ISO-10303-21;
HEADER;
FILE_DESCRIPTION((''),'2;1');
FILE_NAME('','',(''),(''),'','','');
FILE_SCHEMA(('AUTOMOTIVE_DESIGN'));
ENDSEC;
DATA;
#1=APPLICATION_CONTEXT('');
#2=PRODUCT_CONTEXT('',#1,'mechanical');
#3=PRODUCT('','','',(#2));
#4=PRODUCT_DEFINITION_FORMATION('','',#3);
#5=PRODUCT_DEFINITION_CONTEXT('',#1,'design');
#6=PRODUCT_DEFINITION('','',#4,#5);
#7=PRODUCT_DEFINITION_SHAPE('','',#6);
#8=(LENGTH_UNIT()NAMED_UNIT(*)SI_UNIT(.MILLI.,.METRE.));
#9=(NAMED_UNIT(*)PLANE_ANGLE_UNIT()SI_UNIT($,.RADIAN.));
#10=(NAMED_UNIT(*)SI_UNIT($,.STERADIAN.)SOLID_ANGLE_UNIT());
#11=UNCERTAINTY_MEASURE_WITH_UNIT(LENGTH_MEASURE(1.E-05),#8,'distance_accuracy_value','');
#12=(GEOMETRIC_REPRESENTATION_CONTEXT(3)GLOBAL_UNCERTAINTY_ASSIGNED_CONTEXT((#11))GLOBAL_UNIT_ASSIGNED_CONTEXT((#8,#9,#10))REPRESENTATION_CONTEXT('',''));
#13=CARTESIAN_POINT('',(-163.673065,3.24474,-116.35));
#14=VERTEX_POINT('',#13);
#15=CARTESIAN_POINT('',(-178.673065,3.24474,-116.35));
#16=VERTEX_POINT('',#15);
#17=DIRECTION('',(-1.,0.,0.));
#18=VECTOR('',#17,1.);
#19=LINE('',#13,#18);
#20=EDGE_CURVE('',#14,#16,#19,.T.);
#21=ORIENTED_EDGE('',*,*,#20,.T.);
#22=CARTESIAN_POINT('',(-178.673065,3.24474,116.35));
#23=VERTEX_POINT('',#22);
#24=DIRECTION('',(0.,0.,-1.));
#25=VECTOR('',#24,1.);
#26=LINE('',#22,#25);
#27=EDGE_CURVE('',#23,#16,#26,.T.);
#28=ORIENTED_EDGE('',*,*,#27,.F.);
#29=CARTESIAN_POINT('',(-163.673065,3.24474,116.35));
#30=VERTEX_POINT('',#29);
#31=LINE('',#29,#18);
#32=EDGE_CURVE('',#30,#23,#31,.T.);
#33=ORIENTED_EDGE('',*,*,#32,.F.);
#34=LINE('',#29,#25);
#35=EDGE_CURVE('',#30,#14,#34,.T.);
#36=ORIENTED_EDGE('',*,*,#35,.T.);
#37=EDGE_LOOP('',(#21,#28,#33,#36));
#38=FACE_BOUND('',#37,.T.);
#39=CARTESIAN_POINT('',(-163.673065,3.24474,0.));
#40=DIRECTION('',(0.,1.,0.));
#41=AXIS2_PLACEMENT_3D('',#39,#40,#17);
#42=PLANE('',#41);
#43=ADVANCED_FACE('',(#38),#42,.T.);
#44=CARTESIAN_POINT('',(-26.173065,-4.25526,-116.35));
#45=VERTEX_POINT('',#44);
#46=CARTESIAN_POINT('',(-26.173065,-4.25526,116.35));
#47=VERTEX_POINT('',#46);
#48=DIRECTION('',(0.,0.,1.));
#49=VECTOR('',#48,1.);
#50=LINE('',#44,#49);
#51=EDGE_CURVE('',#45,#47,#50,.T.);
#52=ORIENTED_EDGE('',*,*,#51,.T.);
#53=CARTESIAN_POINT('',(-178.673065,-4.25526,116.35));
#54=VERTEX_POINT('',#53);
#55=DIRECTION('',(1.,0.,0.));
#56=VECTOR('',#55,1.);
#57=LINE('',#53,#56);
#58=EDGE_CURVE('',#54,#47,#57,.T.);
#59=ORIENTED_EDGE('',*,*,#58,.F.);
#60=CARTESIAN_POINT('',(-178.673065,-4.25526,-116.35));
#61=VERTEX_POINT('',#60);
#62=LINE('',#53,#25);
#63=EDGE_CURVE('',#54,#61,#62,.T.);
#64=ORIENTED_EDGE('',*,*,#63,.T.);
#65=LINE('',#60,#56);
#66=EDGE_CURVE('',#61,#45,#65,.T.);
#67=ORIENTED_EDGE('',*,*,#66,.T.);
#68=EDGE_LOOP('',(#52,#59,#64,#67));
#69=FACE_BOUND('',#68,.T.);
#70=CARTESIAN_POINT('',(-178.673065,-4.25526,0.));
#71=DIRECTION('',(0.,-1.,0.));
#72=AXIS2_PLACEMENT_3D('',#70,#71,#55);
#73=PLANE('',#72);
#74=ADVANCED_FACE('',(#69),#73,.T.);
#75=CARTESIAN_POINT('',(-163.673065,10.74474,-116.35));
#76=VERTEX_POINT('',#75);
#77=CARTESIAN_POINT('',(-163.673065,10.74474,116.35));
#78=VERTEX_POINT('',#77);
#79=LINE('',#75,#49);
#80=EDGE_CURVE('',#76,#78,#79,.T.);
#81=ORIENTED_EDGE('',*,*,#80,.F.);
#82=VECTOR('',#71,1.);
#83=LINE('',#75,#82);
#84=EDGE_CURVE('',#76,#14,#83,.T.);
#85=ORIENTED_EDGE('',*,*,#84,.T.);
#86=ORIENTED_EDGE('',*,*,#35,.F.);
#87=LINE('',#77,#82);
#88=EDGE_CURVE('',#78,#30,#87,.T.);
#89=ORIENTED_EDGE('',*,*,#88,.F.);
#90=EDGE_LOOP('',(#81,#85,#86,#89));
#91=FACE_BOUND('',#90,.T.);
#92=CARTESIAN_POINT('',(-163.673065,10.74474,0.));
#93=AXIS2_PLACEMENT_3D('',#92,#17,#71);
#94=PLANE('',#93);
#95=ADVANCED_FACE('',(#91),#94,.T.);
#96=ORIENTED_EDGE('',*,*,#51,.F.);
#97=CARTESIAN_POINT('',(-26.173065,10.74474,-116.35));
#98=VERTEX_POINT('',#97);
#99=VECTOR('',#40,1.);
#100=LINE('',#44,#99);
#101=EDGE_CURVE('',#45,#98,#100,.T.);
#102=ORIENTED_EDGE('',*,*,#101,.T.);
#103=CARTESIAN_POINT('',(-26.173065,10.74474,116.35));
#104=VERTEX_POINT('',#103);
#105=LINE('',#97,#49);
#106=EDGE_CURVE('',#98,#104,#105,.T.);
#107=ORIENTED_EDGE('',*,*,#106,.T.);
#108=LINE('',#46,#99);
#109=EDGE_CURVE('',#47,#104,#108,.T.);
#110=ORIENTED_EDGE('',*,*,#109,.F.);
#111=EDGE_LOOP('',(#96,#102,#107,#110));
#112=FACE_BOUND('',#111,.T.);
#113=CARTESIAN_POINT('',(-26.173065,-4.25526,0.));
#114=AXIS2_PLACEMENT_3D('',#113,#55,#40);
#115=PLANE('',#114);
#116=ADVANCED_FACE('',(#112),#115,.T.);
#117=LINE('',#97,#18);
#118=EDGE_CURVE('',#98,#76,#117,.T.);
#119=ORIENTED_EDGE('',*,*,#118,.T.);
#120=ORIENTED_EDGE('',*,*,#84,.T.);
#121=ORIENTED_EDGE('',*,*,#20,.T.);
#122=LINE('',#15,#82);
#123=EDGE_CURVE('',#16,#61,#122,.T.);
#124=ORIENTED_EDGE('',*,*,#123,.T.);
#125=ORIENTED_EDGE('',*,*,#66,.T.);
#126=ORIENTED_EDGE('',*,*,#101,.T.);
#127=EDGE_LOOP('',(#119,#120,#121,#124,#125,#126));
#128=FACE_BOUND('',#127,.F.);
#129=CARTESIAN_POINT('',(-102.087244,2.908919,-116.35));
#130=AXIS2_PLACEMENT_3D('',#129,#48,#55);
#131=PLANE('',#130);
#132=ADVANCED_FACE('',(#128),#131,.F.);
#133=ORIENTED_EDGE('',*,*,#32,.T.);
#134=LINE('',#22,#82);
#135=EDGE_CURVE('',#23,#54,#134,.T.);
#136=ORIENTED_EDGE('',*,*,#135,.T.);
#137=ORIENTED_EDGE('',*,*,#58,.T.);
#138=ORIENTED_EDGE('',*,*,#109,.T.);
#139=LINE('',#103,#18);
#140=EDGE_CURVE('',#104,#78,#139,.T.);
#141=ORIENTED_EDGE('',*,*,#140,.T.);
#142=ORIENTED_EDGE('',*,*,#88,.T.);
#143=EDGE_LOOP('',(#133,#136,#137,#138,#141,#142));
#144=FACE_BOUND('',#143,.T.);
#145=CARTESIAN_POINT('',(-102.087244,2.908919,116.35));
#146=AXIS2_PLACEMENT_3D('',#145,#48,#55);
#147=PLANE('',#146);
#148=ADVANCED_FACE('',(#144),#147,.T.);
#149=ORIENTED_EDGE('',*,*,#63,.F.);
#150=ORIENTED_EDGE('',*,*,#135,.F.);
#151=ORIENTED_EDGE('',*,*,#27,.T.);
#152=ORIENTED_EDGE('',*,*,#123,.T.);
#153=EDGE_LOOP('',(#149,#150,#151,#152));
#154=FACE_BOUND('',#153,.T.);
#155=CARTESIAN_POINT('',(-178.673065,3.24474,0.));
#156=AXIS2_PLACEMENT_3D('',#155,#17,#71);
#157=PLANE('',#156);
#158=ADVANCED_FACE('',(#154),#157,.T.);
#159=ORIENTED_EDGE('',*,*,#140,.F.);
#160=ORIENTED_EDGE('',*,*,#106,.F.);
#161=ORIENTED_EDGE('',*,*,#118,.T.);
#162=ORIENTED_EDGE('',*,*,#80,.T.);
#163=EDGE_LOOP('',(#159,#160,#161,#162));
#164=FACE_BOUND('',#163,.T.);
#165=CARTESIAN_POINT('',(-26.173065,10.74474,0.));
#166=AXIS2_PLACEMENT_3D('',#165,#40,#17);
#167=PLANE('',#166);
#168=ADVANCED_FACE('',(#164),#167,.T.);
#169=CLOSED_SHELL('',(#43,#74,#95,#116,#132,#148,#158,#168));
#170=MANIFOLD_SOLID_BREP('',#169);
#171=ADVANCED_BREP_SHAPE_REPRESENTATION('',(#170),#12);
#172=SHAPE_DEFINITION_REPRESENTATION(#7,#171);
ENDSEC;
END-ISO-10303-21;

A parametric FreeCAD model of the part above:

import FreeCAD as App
import Part
import Sketcher


def add_polygon(sketch, points):
    """Adds a closed chain of lines whose ends are joined by coincident constraints."""
    first, n = sketch.GeometryCount, len(points)
    for a, b in zip(points, points[1:] + points[:1]):
        sketch.addGeometry(Part.LineSegment(App.Vector(*a, 0), App.Vector(*b, 0)), False)
    for i in range(n):
        sketch.addConstraint(Sketcher.Constraint("Coincident", first + i, 2, first + (i + 1) % n, 1))

doc = App.newDocument("Part")
body = doc.addObject("PartDesign::Body", "Body")

# Sketch on XY plane
sketch1 = body.newObject("Sketcher::SketchObject", "Sketch")
sketch1.AttachmentSupport = (doc.getObject("XY_Plane"), [""])
sketch1.MapMode = "FlatFace"
add_polygon(sketch1, [(-179, -4), (-26, -4), (-26, 11), (-164, 11), (-164, 3), (-179, 3)])  # lines 0-5
sketch1.addConstraint([
    Sketcher.Constraint("Horizontal", 0),
    Sketcher.Constraint("Vertical", 1),
    Sketcher.Constraint("Horizontal", 2),
    Sketcher.Constraint("Vertical", 3),
    Sketcher.Constraint("Horizontal", 4),
    Sketcher.Constraint("Vertical", 5),
    Sketcher.Constraint("Equal", 4, 1),
    Sketcher.Constraint("Equal", 3, 5),
    Sketcher.Constraint("DistanceX", 4, 2, 4, 1, 15.0),
    Sketcher.Constraint("DistanceX", 0, 1, 0, 2, 152.5),
    Sketcher.Constraint("DistanceY", 0, 2, -1, 1, 4.25526),
    Sketcher.Constraint("DistanceX", 0, 2, -1, 1, 26.173065),
])
pad1 = body.newObject("PartDesign::Pad", "Pad")
pad1.Profile = sketch1
pad1.Length = 232.7
pad1.Midplane = True

doc.recompute()
